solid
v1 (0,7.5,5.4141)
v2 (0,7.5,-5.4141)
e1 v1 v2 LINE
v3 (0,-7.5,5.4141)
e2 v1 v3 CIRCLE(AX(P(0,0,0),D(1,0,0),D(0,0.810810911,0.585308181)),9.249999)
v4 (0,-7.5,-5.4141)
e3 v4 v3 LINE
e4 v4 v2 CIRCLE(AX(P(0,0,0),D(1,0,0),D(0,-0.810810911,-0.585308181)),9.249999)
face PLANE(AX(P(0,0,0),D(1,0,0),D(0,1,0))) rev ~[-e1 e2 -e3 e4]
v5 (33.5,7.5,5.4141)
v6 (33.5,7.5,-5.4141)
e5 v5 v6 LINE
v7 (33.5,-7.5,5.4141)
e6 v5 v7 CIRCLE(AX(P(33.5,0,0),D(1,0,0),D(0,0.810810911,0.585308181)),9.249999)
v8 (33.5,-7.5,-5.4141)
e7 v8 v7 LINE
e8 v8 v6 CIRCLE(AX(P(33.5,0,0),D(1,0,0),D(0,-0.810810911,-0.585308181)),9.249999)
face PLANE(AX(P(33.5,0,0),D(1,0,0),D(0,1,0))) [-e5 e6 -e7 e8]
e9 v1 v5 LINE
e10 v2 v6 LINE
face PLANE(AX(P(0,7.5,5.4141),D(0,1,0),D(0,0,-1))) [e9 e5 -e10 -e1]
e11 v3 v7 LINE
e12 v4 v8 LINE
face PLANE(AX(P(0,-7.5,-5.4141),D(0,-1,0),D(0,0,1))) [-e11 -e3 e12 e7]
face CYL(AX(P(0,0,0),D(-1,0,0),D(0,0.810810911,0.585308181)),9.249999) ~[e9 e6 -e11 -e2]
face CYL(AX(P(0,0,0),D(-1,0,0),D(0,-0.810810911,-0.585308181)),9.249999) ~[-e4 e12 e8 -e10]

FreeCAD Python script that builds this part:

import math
import FreeCAD as App
import Part
import Sketcher
Q = App.Units.Quantity

doc = App.newDocument("Part")
body = doc.addObject("PartDesign::Body", "Body")

# Sketch on YZ plane
sketch1 = body.newObject("Sketcher::SketchObject", "Sketch")
sketch1.AttachmentSupport = (doc.getObject("YZ_Plane"), [""])
sketch1.MapMode = "FlatFace"
sketch1.addGeometry([
    Part.LineSegment(App.Vector(8, -5, 0), App.Vector(8, 5, 0)),
    Part.ArcOfCircle(Part.Circle(App.Vector(0, 0, 0), App.Vector(0, 0, 1), 9), math.radians(36), math.radians(144)),
    Part.LineSegment(App.Vector(-8, 5, 0), App.Vector(-8, -5, 0)),
    Part.ArcOfCircle(Part.Circle(App.Vector(0, 0, 0), App.Vector(0, 0, 1), 9), math.radians(-144), math.radians(-36)),
], False)
sketch1.addConstraint([
    Sketcher.Constraint("Coincident", 0, 2, 1, 1),
    Sketcher.Constraint("Coincident", 1, 2, 2, 1),
    Sketcher.Constraint("Coincident", 2, 2, 3, 1),
    Sketcher.Constraint("Coincident", 3, 2, 0, 1),
    Sketcher.Constraint("Vertical", 0),
    Sketcher.Constraint("Vertical", 2),
    Sketcher.Constraint("Coincident", 1, 3, -1, 1),
    Sketcher.Constraint("Coincident", 3, 3, -1, 1),
    Sketcher.Constraint("Equal", 1, 3),
    Sketcher.Constraint("Horizontal", 0, 2, 1, 2),
    Sketcher.Constraint("Radius", 1, Q("9.25 mm")),
    Sketcher.Constraint("DistanceX", 1, 2, 0, 2, Q("15 mm")),
])
pad1 = body.newObject("PartDesign::Pad", "Pad")
pad1.Profile = sketch1
pad1.Length = 33.5

doc.recompute()
